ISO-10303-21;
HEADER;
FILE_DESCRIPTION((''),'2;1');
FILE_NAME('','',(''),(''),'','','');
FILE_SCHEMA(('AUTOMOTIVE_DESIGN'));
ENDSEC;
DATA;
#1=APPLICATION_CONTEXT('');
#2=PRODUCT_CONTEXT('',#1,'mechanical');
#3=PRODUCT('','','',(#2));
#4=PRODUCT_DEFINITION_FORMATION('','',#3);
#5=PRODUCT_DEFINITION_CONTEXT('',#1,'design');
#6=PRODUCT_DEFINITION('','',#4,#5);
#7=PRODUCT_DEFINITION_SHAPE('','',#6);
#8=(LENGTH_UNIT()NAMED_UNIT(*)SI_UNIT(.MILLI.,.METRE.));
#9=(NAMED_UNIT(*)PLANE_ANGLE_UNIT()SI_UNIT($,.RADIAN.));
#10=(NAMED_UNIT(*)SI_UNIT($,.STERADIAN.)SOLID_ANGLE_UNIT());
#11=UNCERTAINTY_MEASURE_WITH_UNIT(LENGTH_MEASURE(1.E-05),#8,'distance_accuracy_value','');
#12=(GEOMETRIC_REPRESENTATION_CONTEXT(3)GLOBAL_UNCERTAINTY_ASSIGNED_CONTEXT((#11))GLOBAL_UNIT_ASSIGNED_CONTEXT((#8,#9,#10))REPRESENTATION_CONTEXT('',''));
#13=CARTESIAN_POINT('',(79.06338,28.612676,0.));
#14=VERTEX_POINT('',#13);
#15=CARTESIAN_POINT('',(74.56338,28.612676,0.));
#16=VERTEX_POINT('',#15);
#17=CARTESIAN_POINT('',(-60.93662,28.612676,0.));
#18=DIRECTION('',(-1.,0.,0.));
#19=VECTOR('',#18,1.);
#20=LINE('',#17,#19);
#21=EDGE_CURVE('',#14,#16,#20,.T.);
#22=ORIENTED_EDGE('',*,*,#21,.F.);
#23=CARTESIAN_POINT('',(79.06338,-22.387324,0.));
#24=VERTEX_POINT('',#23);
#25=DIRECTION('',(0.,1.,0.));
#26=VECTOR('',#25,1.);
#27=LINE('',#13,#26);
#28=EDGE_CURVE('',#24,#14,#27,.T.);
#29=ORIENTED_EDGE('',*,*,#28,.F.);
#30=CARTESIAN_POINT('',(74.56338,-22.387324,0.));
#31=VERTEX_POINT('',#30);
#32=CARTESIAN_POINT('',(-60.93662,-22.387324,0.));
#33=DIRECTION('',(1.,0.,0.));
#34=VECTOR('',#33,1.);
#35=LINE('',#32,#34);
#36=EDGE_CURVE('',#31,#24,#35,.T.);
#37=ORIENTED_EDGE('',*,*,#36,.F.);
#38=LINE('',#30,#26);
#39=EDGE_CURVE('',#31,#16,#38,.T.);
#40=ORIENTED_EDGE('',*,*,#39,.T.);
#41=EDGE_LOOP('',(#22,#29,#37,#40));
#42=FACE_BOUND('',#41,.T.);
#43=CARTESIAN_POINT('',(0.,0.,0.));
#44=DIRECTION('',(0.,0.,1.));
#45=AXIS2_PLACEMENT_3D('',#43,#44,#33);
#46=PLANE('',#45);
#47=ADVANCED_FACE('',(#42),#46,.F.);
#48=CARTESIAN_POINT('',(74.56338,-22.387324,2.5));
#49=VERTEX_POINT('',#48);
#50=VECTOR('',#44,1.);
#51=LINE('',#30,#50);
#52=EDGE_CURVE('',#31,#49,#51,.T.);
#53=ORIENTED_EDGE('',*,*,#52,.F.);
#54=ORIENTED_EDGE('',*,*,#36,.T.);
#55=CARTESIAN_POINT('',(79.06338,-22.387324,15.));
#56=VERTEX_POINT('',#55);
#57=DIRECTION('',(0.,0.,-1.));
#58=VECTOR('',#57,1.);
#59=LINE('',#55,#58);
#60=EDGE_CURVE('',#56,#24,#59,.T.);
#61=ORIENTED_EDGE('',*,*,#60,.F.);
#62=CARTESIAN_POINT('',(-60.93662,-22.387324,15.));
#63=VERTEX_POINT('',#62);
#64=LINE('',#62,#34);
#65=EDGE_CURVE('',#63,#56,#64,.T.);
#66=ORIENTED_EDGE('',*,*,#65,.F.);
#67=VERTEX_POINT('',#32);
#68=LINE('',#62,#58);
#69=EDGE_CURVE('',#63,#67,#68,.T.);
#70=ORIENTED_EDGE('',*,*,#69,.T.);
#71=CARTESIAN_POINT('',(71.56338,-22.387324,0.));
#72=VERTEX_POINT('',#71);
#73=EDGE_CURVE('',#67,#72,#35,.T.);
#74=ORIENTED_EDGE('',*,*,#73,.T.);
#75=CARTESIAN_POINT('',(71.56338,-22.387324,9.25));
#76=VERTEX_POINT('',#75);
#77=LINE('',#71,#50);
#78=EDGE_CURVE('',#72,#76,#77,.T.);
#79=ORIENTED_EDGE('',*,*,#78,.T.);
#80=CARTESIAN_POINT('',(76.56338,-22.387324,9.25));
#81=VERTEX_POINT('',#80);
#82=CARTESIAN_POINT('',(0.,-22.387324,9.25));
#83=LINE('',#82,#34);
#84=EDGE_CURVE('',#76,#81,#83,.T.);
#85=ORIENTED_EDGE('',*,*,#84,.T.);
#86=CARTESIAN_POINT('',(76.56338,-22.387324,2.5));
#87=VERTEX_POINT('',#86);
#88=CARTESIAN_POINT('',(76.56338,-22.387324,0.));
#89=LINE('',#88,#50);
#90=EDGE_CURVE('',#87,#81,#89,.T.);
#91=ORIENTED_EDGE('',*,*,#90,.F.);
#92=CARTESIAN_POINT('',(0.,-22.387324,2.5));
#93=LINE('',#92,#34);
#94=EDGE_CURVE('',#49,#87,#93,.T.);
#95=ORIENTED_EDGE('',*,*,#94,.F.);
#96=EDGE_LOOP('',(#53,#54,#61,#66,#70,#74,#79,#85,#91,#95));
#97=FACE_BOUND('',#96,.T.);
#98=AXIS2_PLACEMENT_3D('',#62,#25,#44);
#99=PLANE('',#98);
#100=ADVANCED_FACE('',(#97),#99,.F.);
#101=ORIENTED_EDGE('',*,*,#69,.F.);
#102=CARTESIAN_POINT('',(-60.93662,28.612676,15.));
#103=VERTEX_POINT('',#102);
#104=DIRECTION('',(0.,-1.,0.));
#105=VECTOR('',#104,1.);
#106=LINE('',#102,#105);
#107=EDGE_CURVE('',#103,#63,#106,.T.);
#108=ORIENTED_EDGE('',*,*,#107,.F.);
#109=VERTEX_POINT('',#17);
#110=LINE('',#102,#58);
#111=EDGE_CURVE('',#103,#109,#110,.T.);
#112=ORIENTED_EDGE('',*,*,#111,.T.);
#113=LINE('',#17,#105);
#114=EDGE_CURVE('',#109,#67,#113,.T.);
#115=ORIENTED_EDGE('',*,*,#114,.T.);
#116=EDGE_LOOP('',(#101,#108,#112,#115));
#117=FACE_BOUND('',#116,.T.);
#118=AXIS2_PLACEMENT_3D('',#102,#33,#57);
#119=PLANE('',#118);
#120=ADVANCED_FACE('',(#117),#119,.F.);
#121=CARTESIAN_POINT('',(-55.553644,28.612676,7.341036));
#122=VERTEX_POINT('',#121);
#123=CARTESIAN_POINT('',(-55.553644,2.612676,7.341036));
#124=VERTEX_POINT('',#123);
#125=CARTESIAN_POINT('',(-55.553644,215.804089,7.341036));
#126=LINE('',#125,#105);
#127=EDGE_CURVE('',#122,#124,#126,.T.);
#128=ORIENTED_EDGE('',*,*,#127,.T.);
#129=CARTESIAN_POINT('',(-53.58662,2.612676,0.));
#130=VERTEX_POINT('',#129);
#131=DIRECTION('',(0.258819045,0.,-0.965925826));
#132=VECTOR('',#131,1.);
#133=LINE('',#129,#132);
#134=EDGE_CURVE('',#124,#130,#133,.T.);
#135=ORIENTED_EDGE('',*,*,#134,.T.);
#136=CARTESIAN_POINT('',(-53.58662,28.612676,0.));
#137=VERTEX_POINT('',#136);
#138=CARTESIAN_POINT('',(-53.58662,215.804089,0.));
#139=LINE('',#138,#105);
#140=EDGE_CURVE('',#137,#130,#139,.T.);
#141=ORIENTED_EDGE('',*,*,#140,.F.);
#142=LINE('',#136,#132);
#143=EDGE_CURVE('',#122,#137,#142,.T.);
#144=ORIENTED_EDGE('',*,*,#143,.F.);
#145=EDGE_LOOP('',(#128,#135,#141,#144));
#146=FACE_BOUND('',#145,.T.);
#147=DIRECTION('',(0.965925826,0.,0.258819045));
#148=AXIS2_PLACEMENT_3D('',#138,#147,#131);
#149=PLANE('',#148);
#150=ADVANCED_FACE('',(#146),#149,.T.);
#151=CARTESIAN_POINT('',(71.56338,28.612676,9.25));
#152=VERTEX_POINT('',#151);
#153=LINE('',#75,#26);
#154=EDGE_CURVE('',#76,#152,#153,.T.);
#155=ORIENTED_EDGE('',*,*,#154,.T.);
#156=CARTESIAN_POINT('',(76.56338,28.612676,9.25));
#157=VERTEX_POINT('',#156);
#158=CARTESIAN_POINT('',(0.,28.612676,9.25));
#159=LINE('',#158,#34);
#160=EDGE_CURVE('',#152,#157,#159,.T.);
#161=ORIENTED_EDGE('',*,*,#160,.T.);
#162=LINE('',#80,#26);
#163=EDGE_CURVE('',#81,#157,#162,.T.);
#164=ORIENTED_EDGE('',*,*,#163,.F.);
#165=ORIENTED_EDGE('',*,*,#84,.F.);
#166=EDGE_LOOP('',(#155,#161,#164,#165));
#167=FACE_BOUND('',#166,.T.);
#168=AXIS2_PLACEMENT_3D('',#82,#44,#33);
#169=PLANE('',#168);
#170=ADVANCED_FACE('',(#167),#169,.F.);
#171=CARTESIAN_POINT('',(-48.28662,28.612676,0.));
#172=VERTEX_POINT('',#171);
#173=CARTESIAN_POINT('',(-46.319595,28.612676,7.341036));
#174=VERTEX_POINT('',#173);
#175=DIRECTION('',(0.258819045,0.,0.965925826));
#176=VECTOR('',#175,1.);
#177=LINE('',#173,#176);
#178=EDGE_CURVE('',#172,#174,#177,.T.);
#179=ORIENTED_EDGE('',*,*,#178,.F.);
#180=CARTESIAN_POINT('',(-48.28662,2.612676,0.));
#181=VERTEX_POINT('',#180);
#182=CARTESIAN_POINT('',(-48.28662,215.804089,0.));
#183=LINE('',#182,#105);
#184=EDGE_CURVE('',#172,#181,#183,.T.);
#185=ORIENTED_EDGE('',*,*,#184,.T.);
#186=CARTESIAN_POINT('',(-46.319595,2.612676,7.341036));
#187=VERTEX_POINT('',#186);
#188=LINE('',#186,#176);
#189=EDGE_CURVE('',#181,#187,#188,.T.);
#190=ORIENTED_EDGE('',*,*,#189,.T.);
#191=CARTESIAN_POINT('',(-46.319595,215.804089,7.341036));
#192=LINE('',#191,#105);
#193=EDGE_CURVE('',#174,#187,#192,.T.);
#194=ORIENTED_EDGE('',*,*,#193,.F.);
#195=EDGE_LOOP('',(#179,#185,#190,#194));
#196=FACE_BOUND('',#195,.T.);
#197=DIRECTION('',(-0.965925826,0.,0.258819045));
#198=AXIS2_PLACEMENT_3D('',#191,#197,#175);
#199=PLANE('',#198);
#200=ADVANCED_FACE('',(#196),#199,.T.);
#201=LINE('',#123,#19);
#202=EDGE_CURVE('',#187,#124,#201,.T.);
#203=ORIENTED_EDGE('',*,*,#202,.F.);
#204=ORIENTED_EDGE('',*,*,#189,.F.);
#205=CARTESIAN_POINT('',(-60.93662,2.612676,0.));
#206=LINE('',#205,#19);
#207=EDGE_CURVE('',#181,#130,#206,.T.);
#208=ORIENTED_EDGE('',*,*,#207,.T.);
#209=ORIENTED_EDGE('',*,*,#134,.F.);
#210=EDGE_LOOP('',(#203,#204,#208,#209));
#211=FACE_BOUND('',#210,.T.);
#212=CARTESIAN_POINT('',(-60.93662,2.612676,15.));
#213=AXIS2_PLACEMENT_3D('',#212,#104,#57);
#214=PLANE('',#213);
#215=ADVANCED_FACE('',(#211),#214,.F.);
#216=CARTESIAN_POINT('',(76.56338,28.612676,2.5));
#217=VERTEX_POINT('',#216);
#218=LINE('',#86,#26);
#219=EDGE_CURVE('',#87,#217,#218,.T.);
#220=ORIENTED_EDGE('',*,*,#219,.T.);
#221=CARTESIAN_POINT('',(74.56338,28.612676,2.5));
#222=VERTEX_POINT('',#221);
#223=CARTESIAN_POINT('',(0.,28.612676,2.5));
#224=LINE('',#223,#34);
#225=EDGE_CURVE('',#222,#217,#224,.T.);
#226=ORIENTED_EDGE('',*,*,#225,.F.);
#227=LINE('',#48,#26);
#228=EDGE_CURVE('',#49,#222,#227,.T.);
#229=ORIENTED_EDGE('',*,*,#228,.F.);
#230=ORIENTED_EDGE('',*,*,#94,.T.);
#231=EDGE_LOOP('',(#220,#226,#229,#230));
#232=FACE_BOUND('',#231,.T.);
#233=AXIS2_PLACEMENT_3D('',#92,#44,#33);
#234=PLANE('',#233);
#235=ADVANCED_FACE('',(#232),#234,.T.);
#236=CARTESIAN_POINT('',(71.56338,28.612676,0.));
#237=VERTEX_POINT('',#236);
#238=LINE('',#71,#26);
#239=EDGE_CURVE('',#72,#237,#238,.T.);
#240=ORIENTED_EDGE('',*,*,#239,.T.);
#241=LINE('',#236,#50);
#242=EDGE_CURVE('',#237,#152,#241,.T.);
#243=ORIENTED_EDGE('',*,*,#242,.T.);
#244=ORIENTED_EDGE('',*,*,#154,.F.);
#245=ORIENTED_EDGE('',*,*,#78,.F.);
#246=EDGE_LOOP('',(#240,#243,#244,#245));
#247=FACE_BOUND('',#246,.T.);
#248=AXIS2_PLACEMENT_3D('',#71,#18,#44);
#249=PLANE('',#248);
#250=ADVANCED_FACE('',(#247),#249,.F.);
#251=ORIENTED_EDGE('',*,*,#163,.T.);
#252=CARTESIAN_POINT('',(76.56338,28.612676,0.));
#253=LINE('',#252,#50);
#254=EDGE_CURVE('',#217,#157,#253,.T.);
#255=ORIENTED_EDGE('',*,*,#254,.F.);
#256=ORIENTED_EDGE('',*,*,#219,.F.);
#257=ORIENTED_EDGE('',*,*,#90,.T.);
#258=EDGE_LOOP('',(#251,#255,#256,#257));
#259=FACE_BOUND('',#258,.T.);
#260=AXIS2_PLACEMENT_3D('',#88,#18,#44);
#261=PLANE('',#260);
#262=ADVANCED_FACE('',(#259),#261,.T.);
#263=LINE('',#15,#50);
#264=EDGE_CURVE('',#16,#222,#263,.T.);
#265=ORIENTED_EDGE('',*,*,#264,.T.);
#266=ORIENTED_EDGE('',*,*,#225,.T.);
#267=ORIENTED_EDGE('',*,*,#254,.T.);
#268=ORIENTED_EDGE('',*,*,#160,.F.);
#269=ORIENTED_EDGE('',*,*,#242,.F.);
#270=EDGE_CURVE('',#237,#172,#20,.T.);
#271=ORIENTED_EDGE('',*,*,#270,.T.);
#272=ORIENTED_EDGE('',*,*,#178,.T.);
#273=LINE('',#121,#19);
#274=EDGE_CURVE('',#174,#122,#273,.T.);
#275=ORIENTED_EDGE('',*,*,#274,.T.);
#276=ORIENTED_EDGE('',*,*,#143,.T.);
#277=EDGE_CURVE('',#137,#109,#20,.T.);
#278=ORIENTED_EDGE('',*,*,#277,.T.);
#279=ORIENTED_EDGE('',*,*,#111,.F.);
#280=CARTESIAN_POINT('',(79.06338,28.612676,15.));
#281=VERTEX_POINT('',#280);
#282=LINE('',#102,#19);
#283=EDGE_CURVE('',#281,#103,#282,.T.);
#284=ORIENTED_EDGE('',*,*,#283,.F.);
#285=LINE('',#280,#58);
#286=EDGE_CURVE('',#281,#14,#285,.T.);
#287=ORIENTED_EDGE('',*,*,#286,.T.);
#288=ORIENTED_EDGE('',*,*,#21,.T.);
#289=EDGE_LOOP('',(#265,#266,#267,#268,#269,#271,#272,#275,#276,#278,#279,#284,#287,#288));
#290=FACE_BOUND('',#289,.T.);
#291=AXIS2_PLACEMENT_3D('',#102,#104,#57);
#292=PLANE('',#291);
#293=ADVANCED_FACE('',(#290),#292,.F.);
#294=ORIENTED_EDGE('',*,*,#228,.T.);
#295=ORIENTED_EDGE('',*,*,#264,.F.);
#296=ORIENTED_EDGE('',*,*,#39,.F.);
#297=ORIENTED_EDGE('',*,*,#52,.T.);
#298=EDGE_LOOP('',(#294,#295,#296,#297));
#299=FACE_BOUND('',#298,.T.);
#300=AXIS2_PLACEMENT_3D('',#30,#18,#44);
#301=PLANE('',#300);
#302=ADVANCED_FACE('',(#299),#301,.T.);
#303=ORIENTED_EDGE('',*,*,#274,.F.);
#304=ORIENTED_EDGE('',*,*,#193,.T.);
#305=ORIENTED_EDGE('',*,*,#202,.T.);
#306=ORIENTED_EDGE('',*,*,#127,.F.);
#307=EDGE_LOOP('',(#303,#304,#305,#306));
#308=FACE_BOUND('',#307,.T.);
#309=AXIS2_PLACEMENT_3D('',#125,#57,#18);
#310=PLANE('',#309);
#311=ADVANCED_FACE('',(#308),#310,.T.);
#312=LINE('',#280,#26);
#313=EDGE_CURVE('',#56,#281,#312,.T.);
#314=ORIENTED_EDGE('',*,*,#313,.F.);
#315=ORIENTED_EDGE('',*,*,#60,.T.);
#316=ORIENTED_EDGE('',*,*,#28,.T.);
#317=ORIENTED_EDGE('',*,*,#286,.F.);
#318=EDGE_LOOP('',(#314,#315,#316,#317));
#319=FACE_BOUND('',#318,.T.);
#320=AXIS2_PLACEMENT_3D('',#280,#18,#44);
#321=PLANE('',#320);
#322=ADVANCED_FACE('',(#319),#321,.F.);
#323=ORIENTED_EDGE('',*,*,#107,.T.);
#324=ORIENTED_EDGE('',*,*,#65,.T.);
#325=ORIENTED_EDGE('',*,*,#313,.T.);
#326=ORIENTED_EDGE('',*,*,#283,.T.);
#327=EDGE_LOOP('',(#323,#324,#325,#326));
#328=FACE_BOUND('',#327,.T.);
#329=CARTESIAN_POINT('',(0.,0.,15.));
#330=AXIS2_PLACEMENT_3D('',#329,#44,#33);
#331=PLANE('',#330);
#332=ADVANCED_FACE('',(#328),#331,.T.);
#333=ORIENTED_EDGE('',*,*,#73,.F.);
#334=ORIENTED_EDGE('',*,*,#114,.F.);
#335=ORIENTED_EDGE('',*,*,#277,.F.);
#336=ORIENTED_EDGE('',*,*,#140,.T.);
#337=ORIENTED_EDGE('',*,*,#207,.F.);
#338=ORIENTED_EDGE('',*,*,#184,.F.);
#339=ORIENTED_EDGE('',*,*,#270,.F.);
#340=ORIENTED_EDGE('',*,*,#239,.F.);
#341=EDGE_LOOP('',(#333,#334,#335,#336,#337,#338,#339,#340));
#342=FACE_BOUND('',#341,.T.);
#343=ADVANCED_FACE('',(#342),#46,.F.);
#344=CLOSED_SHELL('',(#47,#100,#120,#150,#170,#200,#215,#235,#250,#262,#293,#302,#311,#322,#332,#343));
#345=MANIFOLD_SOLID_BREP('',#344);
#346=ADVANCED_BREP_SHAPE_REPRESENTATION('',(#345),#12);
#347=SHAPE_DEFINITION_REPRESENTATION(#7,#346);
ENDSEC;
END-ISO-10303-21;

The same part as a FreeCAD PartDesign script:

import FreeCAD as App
import Part
import Sketcher
from FreeCAD import Vector
Q = App.Units.Quantity


def add_polygon(sketch, points):
    """Adds a closed chain of lines whose ends are joined by coincident constraints."""
    first, n = sketch.GeometryCount, len(points)
    for a, b in zip(points, points[1:] + points[:1]):
        sketch.addGeometry(Part.LineSegment(App.Vector(*a, 0), App.Vector(*b, 0)), False)
    for i in range(n):
        sketch.addConstraint(Sketcher.Constraint("Coincident", first + i, 2, first + (i + 1) % n, 1))

doc = App.newDocument("Part")
body = doc.addObject("PartDesign::Body", "Body")

# Sketch on XY plane
sketch1 = doc.addObject("Sketcher::SketchObject", "Sketch")
body.addObject(sketch1)
sketch1.AttachmentSupport = (doc.XY_Plane, [""])
sketch1.MapMode = "FlatFace"
add_polygon(sketch1, [(-61, 29), (-61, -22), (79, -22), (79, 29)])  # lines 0-3
sketch1.addConstraint([
    Sketcher.Constraint("Vertical", 0),
    Sketcher.Constraint("Horizontal", 1),
    Sketcher.Constraint("Vertical", 2),
    Sketcher.Constraint("Horizontal", 3),
    Sketcher.Constraint("DistanceX", 1, 1, 1, 2, Q("140 mm")),
    Sketcher.Constraint("DistanceY", 0, 2, 0, 1, Q("51 mm")),
    Sketcher.Constraint("DistanceX", 0, 2, -1, 1, Q("60.93662 mm")),
    Sketcher.Constraint("DistanceY", 0, 2, -1, 1, Q("22.387324 mm")),
])
pad1 = doc.addObject("PartDesign::Pad", "Pad")
body.addObject(pad1)
pad1.Profile = sketch1
pad1.Length = 15

# Sketch on XZ plane
sketch2 = doc.addObject("Sketcher::SketchObject", "Sketch001")
body.addObject(sketch2)
sketch2.AttachmentSupport = (doc.XZ_Plane, [""])
sketch2.MapMode = "FlatFace"
sketch2.AttachmentOffset = App.Placement(Vector(0, 0, -28.612676), App.Rotation())
add_polygon(sketch2, [(74.6, 2.5), (74.6, 0), (71.6, 0), (71.6, 9.2), (76.6, 9.2), (76.6, 2.5)])  # lines 0-5
sketch2.addConstraint([
    Sketcher.Constraint("Vertical", 0),
    Sketcher.Constraint("Horizontal", 1),
    Sketcher.Constraint("Vertical", 2),
    Sketcher.Constraint("Horizontal", 3),
    Sketcher.Constraint("Vertical", 4),
    Sketcher.Constraint("Horizontal", 5),
    Sketcher.Constraint("PointOnObject", 0, 2, -1),
    Sketcher.Constraint("DistanceX", 1, 2, 1, 1, Q("3 mm")),
    Sketcher.Constraint("DistanceX", 3, 1, 3, 2, Q("5 mm")),
    Sketcher.Constraint("DistanceY", 0, 2, 0, 1, Q("2.5 mm")),
    Sketcher.Constraint("DistanceY", 2, 1, 2, 2, Q("9.25 mm")),
    Sketcher.Constraint("DistanceX", -1, 1, 0, 2, Q("74.56338 mm")),
])
pocket1 = doc.addObject("PartDesign::Pocket", "Pocket")
body.addObject(pocket1)
pocket1.Profile = sketch2
pocket1.Type = "ThroughAll"
pocket1.Reversed = True

# Sketch on XZ plane
sketch3 = doc.addObject("Sketcher::SketchObject", "Sketch002")
body.addObject(sketch3)
sketch3.AttachmentSupport = (doc.XZ_Plane, [""])
sketch3.MapMode = "FlatFace"
sketch3.AttachmentOffset = App.Placement(Vector(0, 0, -28.612676), App.Rotation())
add_polygon(sketch3, [(-353, 0), (-54, 0), (-56, 7), (-46, 7), (-48, 0), (-124, -282), (-576, -649), (-805, -368)])  # lines 0-7
sketch3.addConstraint([
    Sketcher.Constraint("Horizontal", 0),
    Sketcher.Constraint("Horizontal", 2),
    Sketcher.Constraint("PointOnObject", 0, 2, -1),
    Sketcher.Constraint("PointOnObject", 3, 2, -1),
    Sketcher.Constraint("Parallel", 3, 4),
    Sketcher.Constraint("Perpendicular", 5, 6),
    Sketcher.Constraint("Perpendicular", 6, 7),
    Sketcher.Constraint("Equal", 1, 3),
    Sketcher.Constraint("Equal", 5, 7),
    Sketcher.Constraint("Angle", 1, Q("105 deg")),
    Sketcher.Constraint("Distance", 1, Q("7.6 mm")),
    Sketcher.Constraint("DistanceX", 0, 2, 3, 2, Q("5.3 mm")),
    Sketcher.Constraint("Distance", 6, Q("362.872418 mm")),
    Sketcher.Constraint("DistanceX", 0, 1, 0, 2, Q("298.952557 mm")),
    Sketcher.Constraint("DistanceX", 0, 2, -1, 1, Q("53.58662 mm")),
    Sketcher.Constraint("DistanceX", 5, 2, -1, 1, Q("576.450551 mm")),
])
pocket2 = doc.addObject("PartDesign::Pocket", "Pocket001")
body.addObject(pocket2)
pocket2.Profile = sketch3
pocket2.Type = "TwoLengths"
pocket2.Length = 1
pocket2.Length2 = 26

doc.recompute()
